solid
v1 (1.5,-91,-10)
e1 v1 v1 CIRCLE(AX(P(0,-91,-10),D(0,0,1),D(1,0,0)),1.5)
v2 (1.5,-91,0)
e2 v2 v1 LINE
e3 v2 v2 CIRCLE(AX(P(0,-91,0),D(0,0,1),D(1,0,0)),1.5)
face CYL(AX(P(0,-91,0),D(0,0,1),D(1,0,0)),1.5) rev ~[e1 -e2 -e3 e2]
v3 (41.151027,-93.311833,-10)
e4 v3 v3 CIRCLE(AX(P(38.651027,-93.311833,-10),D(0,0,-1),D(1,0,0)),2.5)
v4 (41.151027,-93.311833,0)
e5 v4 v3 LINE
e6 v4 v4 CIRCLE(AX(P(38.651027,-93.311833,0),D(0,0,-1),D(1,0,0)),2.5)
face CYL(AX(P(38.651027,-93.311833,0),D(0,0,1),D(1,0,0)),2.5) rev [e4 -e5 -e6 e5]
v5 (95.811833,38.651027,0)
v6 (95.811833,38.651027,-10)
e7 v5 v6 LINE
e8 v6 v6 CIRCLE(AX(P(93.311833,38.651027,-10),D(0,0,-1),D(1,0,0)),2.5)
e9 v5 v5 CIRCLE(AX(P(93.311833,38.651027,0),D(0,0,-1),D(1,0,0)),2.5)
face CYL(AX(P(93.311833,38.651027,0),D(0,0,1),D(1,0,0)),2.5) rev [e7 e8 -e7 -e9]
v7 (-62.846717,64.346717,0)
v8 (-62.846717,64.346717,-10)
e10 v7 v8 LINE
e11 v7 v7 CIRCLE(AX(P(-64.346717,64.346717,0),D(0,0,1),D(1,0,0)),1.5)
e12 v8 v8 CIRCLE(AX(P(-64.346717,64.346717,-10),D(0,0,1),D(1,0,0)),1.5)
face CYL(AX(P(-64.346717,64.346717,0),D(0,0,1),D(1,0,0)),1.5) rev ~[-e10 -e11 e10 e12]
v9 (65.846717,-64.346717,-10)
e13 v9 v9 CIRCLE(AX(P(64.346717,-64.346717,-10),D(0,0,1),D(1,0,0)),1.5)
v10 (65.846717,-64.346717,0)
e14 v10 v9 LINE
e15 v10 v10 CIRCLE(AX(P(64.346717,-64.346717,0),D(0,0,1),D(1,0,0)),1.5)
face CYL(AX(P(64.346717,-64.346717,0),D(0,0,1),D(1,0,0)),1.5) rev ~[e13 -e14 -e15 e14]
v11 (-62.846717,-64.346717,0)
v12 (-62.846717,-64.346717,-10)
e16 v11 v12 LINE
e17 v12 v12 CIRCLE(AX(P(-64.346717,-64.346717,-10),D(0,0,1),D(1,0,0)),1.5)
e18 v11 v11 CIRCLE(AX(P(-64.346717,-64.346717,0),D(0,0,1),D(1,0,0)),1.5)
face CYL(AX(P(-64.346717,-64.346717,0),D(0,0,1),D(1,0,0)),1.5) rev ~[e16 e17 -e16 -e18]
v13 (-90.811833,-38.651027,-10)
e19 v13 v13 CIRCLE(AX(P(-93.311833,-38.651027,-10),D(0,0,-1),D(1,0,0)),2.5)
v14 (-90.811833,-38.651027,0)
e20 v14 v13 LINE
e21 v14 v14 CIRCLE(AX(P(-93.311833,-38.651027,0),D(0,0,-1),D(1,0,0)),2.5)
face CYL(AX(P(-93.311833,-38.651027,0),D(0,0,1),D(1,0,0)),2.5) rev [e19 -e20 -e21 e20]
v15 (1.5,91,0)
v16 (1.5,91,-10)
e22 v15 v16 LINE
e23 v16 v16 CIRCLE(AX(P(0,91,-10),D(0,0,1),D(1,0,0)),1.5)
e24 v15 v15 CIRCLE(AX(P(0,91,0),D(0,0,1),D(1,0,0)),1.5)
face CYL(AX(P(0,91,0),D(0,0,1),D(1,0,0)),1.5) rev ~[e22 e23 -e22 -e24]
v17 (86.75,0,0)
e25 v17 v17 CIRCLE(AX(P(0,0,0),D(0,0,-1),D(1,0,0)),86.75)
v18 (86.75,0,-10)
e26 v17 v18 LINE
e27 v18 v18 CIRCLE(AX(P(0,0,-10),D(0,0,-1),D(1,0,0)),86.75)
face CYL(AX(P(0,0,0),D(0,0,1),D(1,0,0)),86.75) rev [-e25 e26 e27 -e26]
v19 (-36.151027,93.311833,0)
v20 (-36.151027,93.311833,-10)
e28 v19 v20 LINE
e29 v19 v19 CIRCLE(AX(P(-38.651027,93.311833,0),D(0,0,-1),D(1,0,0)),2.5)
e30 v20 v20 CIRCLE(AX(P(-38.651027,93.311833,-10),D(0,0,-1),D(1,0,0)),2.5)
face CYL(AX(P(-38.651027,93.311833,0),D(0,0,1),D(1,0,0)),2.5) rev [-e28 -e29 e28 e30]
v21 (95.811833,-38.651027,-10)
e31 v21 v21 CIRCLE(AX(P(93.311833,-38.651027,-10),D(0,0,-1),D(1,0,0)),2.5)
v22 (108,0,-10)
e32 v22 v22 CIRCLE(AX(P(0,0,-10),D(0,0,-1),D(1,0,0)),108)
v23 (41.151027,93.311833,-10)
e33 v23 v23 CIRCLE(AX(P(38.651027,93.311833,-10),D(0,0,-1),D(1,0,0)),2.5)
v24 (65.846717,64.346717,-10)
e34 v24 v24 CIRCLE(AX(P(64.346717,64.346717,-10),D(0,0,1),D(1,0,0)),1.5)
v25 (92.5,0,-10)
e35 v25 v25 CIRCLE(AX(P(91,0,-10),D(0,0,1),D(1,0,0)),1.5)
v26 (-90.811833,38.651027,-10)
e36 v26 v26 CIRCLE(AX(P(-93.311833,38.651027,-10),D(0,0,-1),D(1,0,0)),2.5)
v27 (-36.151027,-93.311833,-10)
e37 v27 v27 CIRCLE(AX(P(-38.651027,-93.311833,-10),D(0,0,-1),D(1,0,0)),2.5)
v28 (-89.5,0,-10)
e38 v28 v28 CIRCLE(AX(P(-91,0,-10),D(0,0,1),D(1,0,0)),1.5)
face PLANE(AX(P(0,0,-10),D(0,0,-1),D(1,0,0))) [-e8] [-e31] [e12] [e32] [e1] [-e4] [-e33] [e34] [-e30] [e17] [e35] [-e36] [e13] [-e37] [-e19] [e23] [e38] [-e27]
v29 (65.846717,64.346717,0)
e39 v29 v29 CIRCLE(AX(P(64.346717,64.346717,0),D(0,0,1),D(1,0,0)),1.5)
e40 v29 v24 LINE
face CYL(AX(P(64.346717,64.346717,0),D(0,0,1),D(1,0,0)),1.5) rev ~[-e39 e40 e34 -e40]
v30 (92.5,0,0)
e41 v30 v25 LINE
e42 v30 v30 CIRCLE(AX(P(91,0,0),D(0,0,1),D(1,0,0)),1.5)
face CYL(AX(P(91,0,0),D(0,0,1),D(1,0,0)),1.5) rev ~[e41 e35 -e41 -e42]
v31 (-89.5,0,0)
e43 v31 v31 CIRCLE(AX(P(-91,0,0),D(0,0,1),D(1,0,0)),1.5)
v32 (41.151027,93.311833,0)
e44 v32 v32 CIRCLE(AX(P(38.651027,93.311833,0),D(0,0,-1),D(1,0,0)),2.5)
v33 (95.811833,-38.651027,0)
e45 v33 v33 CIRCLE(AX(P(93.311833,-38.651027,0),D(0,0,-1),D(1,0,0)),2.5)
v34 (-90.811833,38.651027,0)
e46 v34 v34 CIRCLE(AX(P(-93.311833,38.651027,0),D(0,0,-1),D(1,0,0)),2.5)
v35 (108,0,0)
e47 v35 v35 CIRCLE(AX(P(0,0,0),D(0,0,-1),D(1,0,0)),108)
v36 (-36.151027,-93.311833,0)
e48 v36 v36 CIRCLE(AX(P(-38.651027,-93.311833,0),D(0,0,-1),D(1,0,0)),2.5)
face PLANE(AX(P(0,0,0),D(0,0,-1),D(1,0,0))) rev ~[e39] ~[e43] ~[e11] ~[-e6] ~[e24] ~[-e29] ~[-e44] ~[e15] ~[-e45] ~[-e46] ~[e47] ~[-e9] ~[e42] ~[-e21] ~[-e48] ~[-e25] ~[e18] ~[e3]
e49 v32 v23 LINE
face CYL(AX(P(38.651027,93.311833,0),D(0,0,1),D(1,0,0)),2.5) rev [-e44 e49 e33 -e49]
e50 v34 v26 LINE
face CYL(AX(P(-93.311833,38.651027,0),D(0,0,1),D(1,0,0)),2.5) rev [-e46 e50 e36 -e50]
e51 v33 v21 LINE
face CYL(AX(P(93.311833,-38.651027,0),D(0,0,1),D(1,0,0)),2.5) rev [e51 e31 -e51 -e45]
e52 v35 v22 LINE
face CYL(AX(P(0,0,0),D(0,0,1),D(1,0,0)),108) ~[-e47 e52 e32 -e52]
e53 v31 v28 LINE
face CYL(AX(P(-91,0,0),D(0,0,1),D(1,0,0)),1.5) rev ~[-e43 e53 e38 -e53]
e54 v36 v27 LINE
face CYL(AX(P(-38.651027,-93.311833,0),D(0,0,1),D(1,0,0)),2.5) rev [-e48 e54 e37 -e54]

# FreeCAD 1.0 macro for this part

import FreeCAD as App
import Part
import Sketcher

doc = App.newDocument("Part")
body = doc.addObject("PartDesign::Body", "Body")

sketch1 = body.newObject("Sketcher::SketchObject", "Sketch")
sketch1.AttachmentSupport = (doc.getObject("XY_Plane"), [""])
sketch1.MapMode = "FlatFace"
sketch1.addGeometry([
    Part.Circle(App.Vector(0, 0, 0), App.Vector(0, 0, 1), 108),
    Part.Circle(App.Vector(-38.7, 93.3, 0), App.Vector(0, 0, 1), 2.5),
    Part.Circle(App.Vector(-93.3, 38.7, 0), App.Vector(0, 0, 1), 2.5),
    Part.Circle(App.Vector(0, 0, 0), App.Vector(0, 0, 1), 86.8),
    Part.Circle(App.Vector(38.7, 93.3, 0), App.Vector(0, 0, 1), 2.5),
    Part.Circle(App.Vector(93.3, 38.7, 0), App.Vector(0, 0, 1), 2.5),
    Part.Circle(App.Vector(-93.3, -38.7, 0), App.Vector(0, 0, 1), 2.5),
    Part.Circle(App.Vector(-38.7, -93.3, 0), App.Vector(0, 0, 1), 2.5),
    Part.Circle(App.Vector(93.3, -38.7, 0), App.Vector(0, 0, 1), 2.5),
    Part.Circle(App.Vector(38.7, -93.3, 0), App.Vector(0, 0, 1), 2.5),
], False)
sketch1.addConstraint([
    Sketcher.Constraint("Coincident", 0, 3, -1, 1),
    Sketcher.Constraint("Coincident", 3, 3, -1, 1),
    Sketcher.Constraint("Equal", 1, 2),
    Sketcher.Constraint("Equal", 2, 4),
    Sketcher.Constraint("Equal", 4, 5),
    Sketcher.Constraint("Equal", 5, 6),
    Sketcher.Constraint("Equal", 6, 7),
    Sketcher.Constraint("Equal", 7, 8),
    Sketcher.Constraint("Equal", 8, 9),
    Sketcher.Constraint("Symmetric", 5, 3, 6, 3, -1, 1),
    Sketcher.Constraint("Symmetric", 4, 3, 7, 3, -1, 1),
    Sketcher.Constraint("Symmetric", 2, 3, 8, 3, -1, 1),
    Sketcher.Constraint("Symmetric", 1, 3, 9, 3, -1, 1),
    Sketcher.Constraint("Symmetric", 1, 3, 4, 3, -2),
    Sketcher.Constraint("Symmetric", 2, 3, 5, 3, -2),
    Sketcher.Constraint("Diameter", 0, 216.0),
    Sketcher.Constraint("Diameter", 1, 5.0),
    Sketcher.Constraint("Diameter", 3, 173.5),
    Sketcher.Constraint("DistanceX", 2, 3, 4, 3, 131.96286),
    Sketcher.Constraint("DistanceY", 6, 3, 1, 3, 131.96286),
    Sketcher.Constraint("DistanceX", 1, 3, -1, 1, 38.651027),
    Sketcher.Constraint("DistanceY", -1, 1, 1, 3, 93.311833),
])
pad1 = body.newObject("PartDesign::Pad", "Pad")
pad1.Profile = sketch1
pad1.Length = 10
pad1.Reversed = True

sketch2 = body.newObject("Sketcher::SketchObject", "Sketch001")
sketch2.AttachmentSupport = (doc.getObject("XY_Plane"), [""])
sketch2.MapMode = "FlatFace"
sketch2.addGeometry([
    Part.Circle(App.Vector(64.3, 64.3, 0), App.Vector(0, 0, 1), 1.5),
    Part.Circle(App.Vector(0, 91, 0), App.Vector(0, 0, 1), 1.5),
    Part.Circle(App.Vector(91, 0, 0), App.Vector(0, 0, 1), 1.5),
    Part.Circle(App.Vector(64.3, -64.3, 0), App.Vector(0, 0, 1), 1.5),
    Part.Circle(App.Vector(0, -91, 0), App.Vector(0, 0, 1), 1.5),
    Part.Circle(App.Vector(-91, 0, 0), App.Vector(0, 0, 1), 1.5),
    Part.Circle(App.Vector(-64.3, -64.3, 0), App.Vector(0, 0, 1), 1.5),
    Part.Circle(App.Vector(-64.3, 64.3, 0), App.Vector(0, 0, 1), 1.5),
], False)
sketch2.addConstraint([
    Sketcher.Constraint("Equal", 0, 1),
    Sketcher.Constraint("Equal", 1, 2),
    Sketcher.Constraint("Equal", 2, 3),
    Sketcher.Constraint("Equal", 3, 4),
    Sketcher.Constraint("Equal", 4, 5),
    Sketcher.Constraint("Equal", 5, 6),
    Sketcher.Constraint("Equal", 6, 7),
    Sketcher.Constraint("Symmetric", 1, 3, 4, 3, -1, 1),
    Sketcher.Constraint("Symmetric", 2, 3, 5, 3, -1, 1),
    Sketcher.Constraint("Symmetric", 0, 3, 6, 3, -1, 1),
    Sketcher.Constraint("Symmetric", 3, 3, 7, 3, -1, 1),
    Sketcher.Constraint("Symmetric", 3, 3, 6, 3, -2),
    Sketcher.Constraint("PointOnObject", 1, 3, -2),
    Sketcher.Constraint("PointOnObject", 2, 3, -1),
    Sketcher.Constraint("Diameter", 0, 3.0),
    Sketcher.Constraint("DistanceY", -1, 1, 1, 3, 91.0),
    Sketcher.Constraint("DistanceX", -1, 1, 2, 3, 91.0),
    Sketcher.Constraint("DistanceX", -1, 1, 0, 3, 64.346717),
    Sketcher.Constraint("DistanceY", -1, 1, 0, 3, 64.346717),
])
pocket1 = body.newObject("PartDesign::Pocket", "Pocket")
pocket1.Profile = sketch2
pocket1.Type = "ThroughAll"
pocket1.Midplane = True

doc.recompute()
